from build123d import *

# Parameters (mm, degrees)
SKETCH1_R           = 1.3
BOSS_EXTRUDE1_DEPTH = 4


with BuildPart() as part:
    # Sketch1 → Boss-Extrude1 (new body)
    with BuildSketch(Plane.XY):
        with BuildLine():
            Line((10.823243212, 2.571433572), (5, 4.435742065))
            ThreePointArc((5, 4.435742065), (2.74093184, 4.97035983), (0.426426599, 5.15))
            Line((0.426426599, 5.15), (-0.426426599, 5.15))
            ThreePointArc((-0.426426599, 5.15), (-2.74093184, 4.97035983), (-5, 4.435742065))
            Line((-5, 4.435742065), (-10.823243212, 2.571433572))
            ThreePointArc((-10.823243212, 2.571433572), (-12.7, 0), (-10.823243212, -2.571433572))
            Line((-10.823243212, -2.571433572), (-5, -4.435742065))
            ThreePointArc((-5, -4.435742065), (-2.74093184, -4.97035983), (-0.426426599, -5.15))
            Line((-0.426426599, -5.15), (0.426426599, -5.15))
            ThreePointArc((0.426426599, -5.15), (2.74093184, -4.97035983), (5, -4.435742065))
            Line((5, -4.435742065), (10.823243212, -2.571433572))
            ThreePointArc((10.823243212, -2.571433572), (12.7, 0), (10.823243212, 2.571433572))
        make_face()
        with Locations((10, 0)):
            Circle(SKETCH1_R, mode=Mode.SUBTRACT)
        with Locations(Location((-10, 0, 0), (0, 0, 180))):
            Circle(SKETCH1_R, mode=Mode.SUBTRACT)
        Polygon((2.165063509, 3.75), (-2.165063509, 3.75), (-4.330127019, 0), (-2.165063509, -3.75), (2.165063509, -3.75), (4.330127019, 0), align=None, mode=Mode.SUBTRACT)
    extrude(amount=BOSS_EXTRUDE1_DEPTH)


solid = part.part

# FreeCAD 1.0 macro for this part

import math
import FreeCAD as App
import Part
import Sketcher

V = App.Vector
Q = App.Units.Quantity

doc = App.newDocument("Part")
body = doc.addObject("PartDesign::Body", "Body")

sketch1 = body.newObject("Sketcher::SketchObject", "Sketch")
sketch1.AttachmentSupport = (doc.getObject("XY_Plane"), [""])
sketch1.MapMode = "FlatFace"
sketch1.addGeometry([
    Part.LineSegment(V(10.8, 2.6, 0), V(5, 4.4, 0)),
    Part.ArcOfCircle(Part.Circle(V(0.4, -9.8, 0), V(0, 0, 1), 15), math.radians(72.25), math.radians(90)),
    Part.LineSegment(V(0.4, 5.2, 0), V(-0.4, 5.2, 0)),
    Part.ArcOfCircle(Part.Circle(V(-0.4, -9.8, 0), V(0, 0, 1), 15), math.radians(90), math.radians(107.75)),
    Part.LineSegment(V(-5, 4.4, 0), V(-10.8, 2.6, 0)),
    Part.ArcOfCircle(Part.Circle(V(-10, 0, 0), V(0, 0, 1), 2.7), math.radians(108), math.radians(252)),
    Part.LineSegment(V(-10.8, -2.6, 0), V(-5, -4.4, 0)),
    Part.ArcOfCircle(Part.Circle(V(-0.4, 9.8, 0), V(0, 0, 1), 15), math.radians(-107.75), math.radians(-90)),
    Part.LineSegment(V(-0.4, -5.2, 0), V(0.4, -5.2, 0)),
    Part.ArcOfCircle(Part.Circle(V(0.4, 9.8, 0), V(0, 0, 1), 15), math.radians(-90), math.radians(-72.25)),
    Part.LineSegment(V(5, -4.4, 0), V(10.8, -2.6, 0)),
    Part.ArcOfCircle(Part.Circle(V(10, 0, 0), V(0, 0, 1), 2.7), math.radians(-72), math.radians(72)),
    Part.Circle(V(-10, 0, 0), V(0, 0, 1), 1.3),
    Part.LineSegment(V(-2.2, 3.8, 0), V(2.2, 3.8, 0)),
    Part.LineSegment(V(2.2, 3.8, 0), V(4.3, 0, 0)),
    Part.LineSegment(V(4.3, 0, 0), V(2.2, -3.8, 0)),
    Part.LineSegment(V(2.2, -3.8, 0), V(-2.2, -3.8, 0)),
    Part.LineSegment(V(-2.2, -3.8, 0), V(-4.3, 0, 0)),
    Part.LineSegment(V(-4.3, 0, 0), V(-2.2, 3.8, 0)),
    Part.Circle(V(10, 0, 0), V(0, 0, 1), 1.3),
], False)
sketch1.addConstraint([
    Sketcher.Constraint("Tangent", 0, 2, 1, 1),
    Sketcher.Constraint("Tangent", 1, 2, 2, 1),
    Sketcher.Constraint("Tangent", 2, 2, 3, 1),
    Sketcher.Constraint("Tangent", 3, 2, 4, 1),
    Sketcher.Constraint("Tangent", 4, 2, 5, 1),
    Sketcher.Constraint("Tangent", 5, 2, 6, 1),
    Sketcher.Constraint("Tangent", 6, 2, 7, 1),
    Sketcher.Constraint("Tangent", 7, 2, 8, 1),
    Sketcher.Constraint("Tangent", 8, 2, 9, 1),
    Sketcher.Constraint("Tangent", 9, 2, 10, 1),
    Sketcher.Constraint("Tangent", 10, 2, 11, 1),
    Sketcher.Constraint("Tangent", 11, 2, 0, 1),
    Sketcher.Constraint("Coincident", 13, 2, 14, 1),
    Sketcher.Constraint("Coincident", 14, 2, 15, 1),
    Sketcher.Constraint("Coincident", 15, 2, 16, 1),
    Sketcher.Constraint("Coincident", 16, 2, 17, 1),
    Sketcher.Constraint("Coincident", 17, 2, 18, 1),
    Sketcher.Constraint("Coincident", 18, 2, 13, 1),
    Sketcher.Constraint("Horizontal", 2),
    Sketcher.Constraint("Horizontal", 8),
    Sketcher.Constraint("Horizontal", 13),
    Sketcher.Constraint("Horizontal", 16),
    Sketcher.Constraint("Coincident", 12, 3, 5, 3),
    Sketcher.Constraint("Coincident", 19, 3, 11, 3),
    Sketcher.Constraint("Equal", 1, 3),
    Sketcher.Constraint("Equal", 3, 7),
    Sketcher.Constraint("Equal", 7, 9),
    Sketcher.Constraint("Equal", 5, 11),
    Sketcher.Constraint("Equal", 12, 19),
    Sketcher.Constraint("Symmetric", 1, 3, 7, 3, -1, 1),
    Sketcher.Constraint("Symmetric", 5, 3, 11, 3, -1, 1),
    Sketcher.Constraint("Symmetric", 13, 2, 16, 2, -1, 1),
    Sketcher.Constraint("Symmetric", 14, 2, 17, 2, -1, 1),
    Sketcher.Constraint("Symmetric", 0, 2, 3, 2, -2),
    Sketcher.Constraint("PointOnObject", 14, 2, -1),
    Sketcher.Constraint("Parallel", 4, 10),
    Sketcher.Constraint("Parallel", 15, 18),
    Sketcher.Constraint("Vertical", 13, 2, 15, 2),
    Sketcher.Constraint("Radius", 1, Q("15 mm")),
    Sketcher.Constraint("Diameter", 12, Q("2.6 mm")),
    Sketcher.Constraint("Radius", 5, Q("2.7 mm")),
    Sketcher.Constraint("Angle", 14, Q("-60 deg")),
    Sketcher.Constraint("DistanceX", 5, 3, -1, 1, Q("10 mm")),
    Sketcher.Constraint("DistanceX", -1, 1, 0, 2, Q("5 mm")),
    Sketcher.Constraint("DistanceY", 3, 3, 7, 3, Q("19.7 mm")),
    Sketcher.Constraint("DistanceY", 13, 2, 1, 2, Q("1.4 mm")),
    Sketcher.Constraint("DistanceX", 13, 1, 13, 2, Q("4.330127 mm")),
])
pad1 = body.newObject("PartDesign::Pad", "Pad")
pad1.Profile = sketch1
pad1.Length = 4

doc.recompute()
